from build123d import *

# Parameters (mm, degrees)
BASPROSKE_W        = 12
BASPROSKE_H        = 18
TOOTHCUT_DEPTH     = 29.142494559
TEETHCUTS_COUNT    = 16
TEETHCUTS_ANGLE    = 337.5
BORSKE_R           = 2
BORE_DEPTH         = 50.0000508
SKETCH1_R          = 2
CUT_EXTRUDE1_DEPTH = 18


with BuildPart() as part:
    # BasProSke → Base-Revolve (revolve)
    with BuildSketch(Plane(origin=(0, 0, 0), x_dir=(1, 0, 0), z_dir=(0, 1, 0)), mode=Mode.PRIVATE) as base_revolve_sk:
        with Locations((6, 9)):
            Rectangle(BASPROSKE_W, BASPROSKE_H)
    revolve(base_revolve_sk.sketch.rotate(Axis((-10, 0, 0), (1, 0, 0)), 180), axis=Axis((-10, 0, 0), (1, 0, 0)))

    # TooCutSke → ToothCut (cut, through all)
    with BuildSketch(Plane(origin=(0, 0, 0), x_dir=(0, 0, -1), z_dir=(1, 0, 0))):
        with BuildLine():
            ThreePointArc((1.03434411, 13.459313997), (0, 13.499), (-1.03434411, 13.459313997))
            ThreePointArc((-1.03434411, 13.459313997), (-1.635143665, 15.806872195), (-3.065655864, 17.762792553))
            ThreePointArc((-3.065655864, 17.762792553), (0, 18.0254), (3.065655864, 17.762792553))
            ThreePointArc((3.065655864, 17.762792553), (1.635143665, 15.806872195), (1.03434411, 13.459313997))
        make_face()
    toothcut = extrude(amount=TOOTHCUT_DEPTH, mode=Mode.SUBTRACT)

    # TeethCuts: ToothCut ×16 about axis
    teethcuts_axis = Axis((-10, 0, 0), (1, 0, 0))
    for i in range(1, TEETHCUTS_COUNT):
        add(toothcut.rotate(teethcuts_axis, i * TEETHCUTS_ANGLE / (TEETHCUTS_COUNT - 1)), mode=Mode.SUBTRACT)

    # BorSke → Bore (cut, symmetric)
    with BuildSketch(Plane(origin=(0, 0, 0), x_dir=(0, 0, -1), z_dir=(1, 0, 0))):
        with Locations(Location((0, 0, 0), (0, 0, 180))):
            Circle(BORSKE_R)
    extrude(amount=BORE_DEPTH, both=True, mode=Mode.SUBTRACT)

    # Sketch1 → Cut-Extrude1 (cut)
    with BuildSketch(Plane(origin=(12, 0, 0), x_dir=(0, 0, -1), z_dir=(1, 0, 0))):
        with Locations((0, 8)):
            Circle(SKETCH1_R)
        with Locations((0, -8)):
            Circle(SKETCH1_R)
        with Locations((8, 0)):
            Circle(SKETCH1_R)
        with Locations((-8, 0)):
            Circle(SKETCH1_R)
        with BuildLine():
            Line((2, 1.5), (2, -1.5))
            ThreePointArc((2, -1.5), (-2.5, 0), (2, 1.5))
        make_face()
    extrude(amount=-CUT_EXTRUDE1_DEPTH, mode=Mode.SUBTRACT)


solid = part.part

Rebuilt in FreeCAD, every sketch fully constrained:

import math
import FreeCAD as App
import Part
import Sketcher
from FreeCAD import Vector

doc = App.newDocument("Part")
body = doc.addObject("PartDesign::Body", "Body")

# Sketch on XZ plane
sketch1 = body.newObject("Sketcher::SketchObject", "Sketch")
sketch1.AttachmentSupport = (doc.getObject("XZ_Plane"), [""])
sketch1.MapMode = "FlatFace"
sketch1.addGeometry([
    Part.LineSegment(Vector(0, -18, 0), Vector(0, 0, 0)),
    Part.LineSegment(Vector(0, 0, 0), Vector(12, 0, 0)),
    Part.LineSegment(Vector(12, 0, 0), Vector(12, -18, 0)),
    Part.LineSegment(Vector(12, -18, 0), Vector(0, -18, 0)),
], False)
sketch1.addConstraint([
    Sketcher.Constraint("Coincident", 0, 2, 1, 1),
    Sketcher.Constraint("Coincident", 1, 2, 2, 1),
    Sketcher.Constraint("Coincident", 2, 2, 3, 1),
    Sketcher.Constraint("Coincident", 3, 2, 0, 1),
    Sketcher.Constraint("Vertical", 0),
    Sketcher.Constraint("Horizontal", 1),
    Sketcher.Constraint("Vertical", 2),
    Sketcher.Constraint("Horizontal", 3),
    Sketcher.Constraint("Coincident", 0, 2, -1, 1),
    Sketcher.Constraint("DistanceX", 1, 1, 1, 2, 12.0),
    Sketcher.Constraint("DistanceY", 0, 1, 0, 2, 18.0),
])
revolution = body.newObject("PartDesign::Revolution", "Revolution")
revolution.Profile = sketch1
revolution.ReferenceAxis = (sketch1, ["H_Axis"])
revolution.Angle = 360

# Sketch on YZ plane
sketch2 = body.newObject("Sketcher::SketchObject", "Sketch001")
sketch2.AttachmentSupport = (doc.getObject("YZ_Plane"), [""])
sketch2.MapMode = "FlatFace"
sketch2.addGeometry([
    Part.ArcOfCircle(Part.Circle(Vector(0, 0, 0), Vector(0, 0, 1), 13.5), math.radians(-4.39), math.radians(4.39)),
    Part.ArcOfCircle(Part.Circle(Vector(13.1, -7.4, 0), Vector(0, 0, 1), 6.4), math.radians(43), math.radians(87)),
    Part.ArcOfCircle(Part.Circle(Vector(0, 0, 0), Vector(0, 0, 1), 18), math.radians(-9.79), math.radians(9.79)),
    Part.ArcOfCircle(Part.Circle(Vector(13.1, 7.4, 0), Vector(0, 0, 1), 6.4), math.radians(-87), math.radians(-43)),
], False)
sketch2.addConstraint([
    Sketcher.Constraint("Coincident", 0, 1, 1, 2),
    Sketcher.Constraint("Coincident", 1, 1, 2, 1),
    Sketcher.Constraint("Coincident", 2, 2, 3, 2),
    Sketcher.Constraint("Coincident", 3, 1, 0, 2),
    Sketcher.Constraint("Coincident", 0, 3, -1, 1),
    Sketcher.Constraint("Coincident", 2, 3, -1, 1),
    Sketcher.Constraint("Equal", 1, 3),
    Sketcher.Constraint("Symmetric", 1, 3, 3, 3, -1),
    Sketcher.Constraint("Radius", 1, 6.4),
    Sketcher.Constraint("Radius", 0, 13.499),
    Sketcher.Constraint("Radius", 2, 18.0254),
    Sketcher.Constraint("DistanceY", 0, 1, 2, 2, 4.1),
    Sketcher.Constraint("DistanceY", 1, 3, 3, 3, 14.84559),
])
pocket1 = body.newObject("PartDesign::Pocket", "Pocket")
pocket1.Profile = sketch2
pocket1.Type = "ThroughAll"
pocket1.Reversed = True
doc.recompute()

polarpattern = body.newObject("PartDesign::PolarPattern", "PolarPattern")
polarpattern.Originals = [pocket1]
polarpattern.Axis = (doc.getObject("X_Axis"), [""])
polarpattern.Angle = 360
polarpattern.Occurrences = 16
body.Tip = polarpattern

# Sketch on YZ plane
sketch3 = body.newObject("Sketcher::SketchObject", "Sketch002")
sketch3.AttachmentSupport = (doc.getObject("YZ_Plane"), [""])
sketch3.MapMode = "FlatFace"
sketch3.addGeometry(Part.Circle(Vector(0, 0, 0), Vector(0, 0, 1), 2), False)
sketch3.addConstraint([
    Sketcher.Constraint("Coincident", 0, 3, -1, 1),
    Sketcher.Constraint("Diameter", 0, 4.0),
])
pocket2 = body.newObject("PartDesign::Pocket", "Pocket001")
pocket2.Profile = sketch3
pocket2.Length = 100.000102
pocket2.Midplane = True

# Sketch on YZ plane
sketch4 = body.newObject("Sketcher::SketchObject", "Sketch003")
sketch4.AttachmentSupport = (doc.getObject("YZ_Plane"), [""])
sketch4.MapMode = "FlatFace"
sketch4.AttachmentOffset = App.Placement(Vector(0, 0, 12), App.Rotation())
sketch4.addGeometry([
    Part.Circle(Vector(8, 0, 0), Vector(0, 0, 1), 2),  # 0
    Part.Circle(Vector(-8, 0, 0), Vector(0, 0, 1), 2),  # 1
    Part.Circle(Vector(0, -8, 0), Vector(0, 0, 1), 2),  # 2
    Part.Circle(Vector(0, 8, 0), Vector(0, 0, 1), 2),  # 3
    Part.LineSegment(Vector(-1.5, -2, 0), Vector(1.5, -2, 0)),  # 4
    Part.ArcOfCircle(Part.Circle(Vector(0, 0, 0), Vector(0, 0, 1), 2.5), math.radians(-53), math.radians(233)),  # 5
], False)
sketch4.addConstraint([
    Sketcher.Constraint("Coincident", 4, 1, 5, 2),
    Sketcher.Constraint("Coincident", 5, 1, 4, 2),
    Sketcher.Constraint("Horizontal", 4),
    Sketcher.Constraint("Coincident", 5, 3, -1, 1),
    Sketcher.Constraint("Equal", 0, 1),
    Sketcher.Constraint("Equal", 1, 2),
    Sketcher.Constraint("Equal", 2, 3),
    Sketcher.Constraint("Symmetric", 0, 3, 1, 3, -1, 1),
    Sketcher.Constraint("Symmetric", 2, 3, 3, 3, -1, 1),
    Sketcher.Constraint("PointOnObject", 0, 3, -1),
    Sketcher.Constraint("PointOnObject", 2, 3, -2),
    Sketcher.Constraint("Diameter", 0, 4.0),
    Sketcher.Constraint("Radius", 5, 2.5),
    Sketcher.Constraint("DistanceX", 4, 1, 4, 2, 3.0),
    Sketcher.Constraint("DistanceX", -1, 1, 0, 3, 8.0),
    Sketcher.Constraint("DistanceY", 2, 3, -1, 1, 8.0),
])
pocket3 = body.newObject("PartDesign::Pocket", "Pocket002")
pocket3.Profile = sketch4
pocket3.Length = 18

doc.recompute()
